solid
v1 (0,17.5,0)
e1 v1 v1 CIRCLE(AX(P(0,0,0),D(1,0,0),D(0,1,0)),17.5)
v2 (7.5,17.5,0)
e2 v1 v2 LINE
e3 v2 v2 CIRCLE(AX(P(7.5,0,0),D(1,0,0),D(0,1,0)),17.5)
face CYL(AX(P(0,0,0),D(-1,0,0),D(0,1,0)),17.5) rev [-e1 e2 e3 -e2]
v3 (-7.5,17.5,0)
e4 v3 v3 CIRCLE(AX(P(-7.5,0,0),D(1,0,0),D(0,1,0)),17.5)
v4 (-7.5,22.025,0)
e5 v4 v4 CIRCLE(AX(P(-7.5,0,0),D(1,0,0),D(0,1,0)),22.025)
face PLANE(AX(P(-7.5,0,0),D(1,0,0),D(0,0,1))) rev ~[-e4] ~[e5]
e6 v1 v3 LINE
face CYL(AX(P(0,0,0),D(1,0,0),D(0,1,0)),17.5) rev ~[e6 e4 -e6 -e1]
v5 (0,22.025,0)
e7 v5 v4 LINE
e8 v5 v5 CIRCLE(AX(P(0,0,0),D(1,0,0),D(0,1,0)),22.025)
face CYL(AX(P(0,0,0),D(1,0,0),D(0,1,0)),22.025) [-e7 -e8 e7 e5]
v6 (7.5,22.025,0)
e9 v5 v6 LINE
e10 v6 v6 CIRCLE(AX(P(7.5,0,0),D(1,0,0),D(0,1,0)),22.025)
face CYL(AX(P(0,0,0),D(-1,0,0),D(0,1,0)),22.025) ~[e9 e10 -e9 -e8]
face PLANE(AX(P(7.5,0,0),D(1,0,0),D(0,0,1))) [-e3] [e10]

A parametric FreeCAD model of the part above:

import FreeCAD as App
import Part
import Sketcher

V = App.Vector
Q = App.Units.Quantity

doc = App.newDocument("Part")
body = doc.addObject("PartDesign::Body", "Body")

# Sketch on YZ plane
sketch1 = body.newObject("Sketcher::SketchObject", "Sketch")
sketch1.AttachmentSupport = (doc.getObject("YZ_Plane"), [""])
sketch1.MapMode = "FlatFace"
sketch1.addGeometry([
    Part.Circle(V(0, 0, 0), V(0, 0, 1), 22),
    Part.Circle(V(0, 0, 0), V(0, 0, 1), 18),
], False)
sketch1.addConstraint([
    Sketcher.Constraint("Coincident", 0, 3, -1, 1),
    Sketcher.Constraint("Coincident", 1, 3, -1, 1),
    Sketcher.Constraint("Diameter", 1, Q("35 mm")),
    Sketcher.Constraint("Diameter", 0, Q("44.05 mm")),
])
pad1 = body.newObject("PartDesign::Pad", "Pad")
pad1.Profile = sketch1
pad1.Length = 15
pad1.Midplane = True

doc.recompute()
